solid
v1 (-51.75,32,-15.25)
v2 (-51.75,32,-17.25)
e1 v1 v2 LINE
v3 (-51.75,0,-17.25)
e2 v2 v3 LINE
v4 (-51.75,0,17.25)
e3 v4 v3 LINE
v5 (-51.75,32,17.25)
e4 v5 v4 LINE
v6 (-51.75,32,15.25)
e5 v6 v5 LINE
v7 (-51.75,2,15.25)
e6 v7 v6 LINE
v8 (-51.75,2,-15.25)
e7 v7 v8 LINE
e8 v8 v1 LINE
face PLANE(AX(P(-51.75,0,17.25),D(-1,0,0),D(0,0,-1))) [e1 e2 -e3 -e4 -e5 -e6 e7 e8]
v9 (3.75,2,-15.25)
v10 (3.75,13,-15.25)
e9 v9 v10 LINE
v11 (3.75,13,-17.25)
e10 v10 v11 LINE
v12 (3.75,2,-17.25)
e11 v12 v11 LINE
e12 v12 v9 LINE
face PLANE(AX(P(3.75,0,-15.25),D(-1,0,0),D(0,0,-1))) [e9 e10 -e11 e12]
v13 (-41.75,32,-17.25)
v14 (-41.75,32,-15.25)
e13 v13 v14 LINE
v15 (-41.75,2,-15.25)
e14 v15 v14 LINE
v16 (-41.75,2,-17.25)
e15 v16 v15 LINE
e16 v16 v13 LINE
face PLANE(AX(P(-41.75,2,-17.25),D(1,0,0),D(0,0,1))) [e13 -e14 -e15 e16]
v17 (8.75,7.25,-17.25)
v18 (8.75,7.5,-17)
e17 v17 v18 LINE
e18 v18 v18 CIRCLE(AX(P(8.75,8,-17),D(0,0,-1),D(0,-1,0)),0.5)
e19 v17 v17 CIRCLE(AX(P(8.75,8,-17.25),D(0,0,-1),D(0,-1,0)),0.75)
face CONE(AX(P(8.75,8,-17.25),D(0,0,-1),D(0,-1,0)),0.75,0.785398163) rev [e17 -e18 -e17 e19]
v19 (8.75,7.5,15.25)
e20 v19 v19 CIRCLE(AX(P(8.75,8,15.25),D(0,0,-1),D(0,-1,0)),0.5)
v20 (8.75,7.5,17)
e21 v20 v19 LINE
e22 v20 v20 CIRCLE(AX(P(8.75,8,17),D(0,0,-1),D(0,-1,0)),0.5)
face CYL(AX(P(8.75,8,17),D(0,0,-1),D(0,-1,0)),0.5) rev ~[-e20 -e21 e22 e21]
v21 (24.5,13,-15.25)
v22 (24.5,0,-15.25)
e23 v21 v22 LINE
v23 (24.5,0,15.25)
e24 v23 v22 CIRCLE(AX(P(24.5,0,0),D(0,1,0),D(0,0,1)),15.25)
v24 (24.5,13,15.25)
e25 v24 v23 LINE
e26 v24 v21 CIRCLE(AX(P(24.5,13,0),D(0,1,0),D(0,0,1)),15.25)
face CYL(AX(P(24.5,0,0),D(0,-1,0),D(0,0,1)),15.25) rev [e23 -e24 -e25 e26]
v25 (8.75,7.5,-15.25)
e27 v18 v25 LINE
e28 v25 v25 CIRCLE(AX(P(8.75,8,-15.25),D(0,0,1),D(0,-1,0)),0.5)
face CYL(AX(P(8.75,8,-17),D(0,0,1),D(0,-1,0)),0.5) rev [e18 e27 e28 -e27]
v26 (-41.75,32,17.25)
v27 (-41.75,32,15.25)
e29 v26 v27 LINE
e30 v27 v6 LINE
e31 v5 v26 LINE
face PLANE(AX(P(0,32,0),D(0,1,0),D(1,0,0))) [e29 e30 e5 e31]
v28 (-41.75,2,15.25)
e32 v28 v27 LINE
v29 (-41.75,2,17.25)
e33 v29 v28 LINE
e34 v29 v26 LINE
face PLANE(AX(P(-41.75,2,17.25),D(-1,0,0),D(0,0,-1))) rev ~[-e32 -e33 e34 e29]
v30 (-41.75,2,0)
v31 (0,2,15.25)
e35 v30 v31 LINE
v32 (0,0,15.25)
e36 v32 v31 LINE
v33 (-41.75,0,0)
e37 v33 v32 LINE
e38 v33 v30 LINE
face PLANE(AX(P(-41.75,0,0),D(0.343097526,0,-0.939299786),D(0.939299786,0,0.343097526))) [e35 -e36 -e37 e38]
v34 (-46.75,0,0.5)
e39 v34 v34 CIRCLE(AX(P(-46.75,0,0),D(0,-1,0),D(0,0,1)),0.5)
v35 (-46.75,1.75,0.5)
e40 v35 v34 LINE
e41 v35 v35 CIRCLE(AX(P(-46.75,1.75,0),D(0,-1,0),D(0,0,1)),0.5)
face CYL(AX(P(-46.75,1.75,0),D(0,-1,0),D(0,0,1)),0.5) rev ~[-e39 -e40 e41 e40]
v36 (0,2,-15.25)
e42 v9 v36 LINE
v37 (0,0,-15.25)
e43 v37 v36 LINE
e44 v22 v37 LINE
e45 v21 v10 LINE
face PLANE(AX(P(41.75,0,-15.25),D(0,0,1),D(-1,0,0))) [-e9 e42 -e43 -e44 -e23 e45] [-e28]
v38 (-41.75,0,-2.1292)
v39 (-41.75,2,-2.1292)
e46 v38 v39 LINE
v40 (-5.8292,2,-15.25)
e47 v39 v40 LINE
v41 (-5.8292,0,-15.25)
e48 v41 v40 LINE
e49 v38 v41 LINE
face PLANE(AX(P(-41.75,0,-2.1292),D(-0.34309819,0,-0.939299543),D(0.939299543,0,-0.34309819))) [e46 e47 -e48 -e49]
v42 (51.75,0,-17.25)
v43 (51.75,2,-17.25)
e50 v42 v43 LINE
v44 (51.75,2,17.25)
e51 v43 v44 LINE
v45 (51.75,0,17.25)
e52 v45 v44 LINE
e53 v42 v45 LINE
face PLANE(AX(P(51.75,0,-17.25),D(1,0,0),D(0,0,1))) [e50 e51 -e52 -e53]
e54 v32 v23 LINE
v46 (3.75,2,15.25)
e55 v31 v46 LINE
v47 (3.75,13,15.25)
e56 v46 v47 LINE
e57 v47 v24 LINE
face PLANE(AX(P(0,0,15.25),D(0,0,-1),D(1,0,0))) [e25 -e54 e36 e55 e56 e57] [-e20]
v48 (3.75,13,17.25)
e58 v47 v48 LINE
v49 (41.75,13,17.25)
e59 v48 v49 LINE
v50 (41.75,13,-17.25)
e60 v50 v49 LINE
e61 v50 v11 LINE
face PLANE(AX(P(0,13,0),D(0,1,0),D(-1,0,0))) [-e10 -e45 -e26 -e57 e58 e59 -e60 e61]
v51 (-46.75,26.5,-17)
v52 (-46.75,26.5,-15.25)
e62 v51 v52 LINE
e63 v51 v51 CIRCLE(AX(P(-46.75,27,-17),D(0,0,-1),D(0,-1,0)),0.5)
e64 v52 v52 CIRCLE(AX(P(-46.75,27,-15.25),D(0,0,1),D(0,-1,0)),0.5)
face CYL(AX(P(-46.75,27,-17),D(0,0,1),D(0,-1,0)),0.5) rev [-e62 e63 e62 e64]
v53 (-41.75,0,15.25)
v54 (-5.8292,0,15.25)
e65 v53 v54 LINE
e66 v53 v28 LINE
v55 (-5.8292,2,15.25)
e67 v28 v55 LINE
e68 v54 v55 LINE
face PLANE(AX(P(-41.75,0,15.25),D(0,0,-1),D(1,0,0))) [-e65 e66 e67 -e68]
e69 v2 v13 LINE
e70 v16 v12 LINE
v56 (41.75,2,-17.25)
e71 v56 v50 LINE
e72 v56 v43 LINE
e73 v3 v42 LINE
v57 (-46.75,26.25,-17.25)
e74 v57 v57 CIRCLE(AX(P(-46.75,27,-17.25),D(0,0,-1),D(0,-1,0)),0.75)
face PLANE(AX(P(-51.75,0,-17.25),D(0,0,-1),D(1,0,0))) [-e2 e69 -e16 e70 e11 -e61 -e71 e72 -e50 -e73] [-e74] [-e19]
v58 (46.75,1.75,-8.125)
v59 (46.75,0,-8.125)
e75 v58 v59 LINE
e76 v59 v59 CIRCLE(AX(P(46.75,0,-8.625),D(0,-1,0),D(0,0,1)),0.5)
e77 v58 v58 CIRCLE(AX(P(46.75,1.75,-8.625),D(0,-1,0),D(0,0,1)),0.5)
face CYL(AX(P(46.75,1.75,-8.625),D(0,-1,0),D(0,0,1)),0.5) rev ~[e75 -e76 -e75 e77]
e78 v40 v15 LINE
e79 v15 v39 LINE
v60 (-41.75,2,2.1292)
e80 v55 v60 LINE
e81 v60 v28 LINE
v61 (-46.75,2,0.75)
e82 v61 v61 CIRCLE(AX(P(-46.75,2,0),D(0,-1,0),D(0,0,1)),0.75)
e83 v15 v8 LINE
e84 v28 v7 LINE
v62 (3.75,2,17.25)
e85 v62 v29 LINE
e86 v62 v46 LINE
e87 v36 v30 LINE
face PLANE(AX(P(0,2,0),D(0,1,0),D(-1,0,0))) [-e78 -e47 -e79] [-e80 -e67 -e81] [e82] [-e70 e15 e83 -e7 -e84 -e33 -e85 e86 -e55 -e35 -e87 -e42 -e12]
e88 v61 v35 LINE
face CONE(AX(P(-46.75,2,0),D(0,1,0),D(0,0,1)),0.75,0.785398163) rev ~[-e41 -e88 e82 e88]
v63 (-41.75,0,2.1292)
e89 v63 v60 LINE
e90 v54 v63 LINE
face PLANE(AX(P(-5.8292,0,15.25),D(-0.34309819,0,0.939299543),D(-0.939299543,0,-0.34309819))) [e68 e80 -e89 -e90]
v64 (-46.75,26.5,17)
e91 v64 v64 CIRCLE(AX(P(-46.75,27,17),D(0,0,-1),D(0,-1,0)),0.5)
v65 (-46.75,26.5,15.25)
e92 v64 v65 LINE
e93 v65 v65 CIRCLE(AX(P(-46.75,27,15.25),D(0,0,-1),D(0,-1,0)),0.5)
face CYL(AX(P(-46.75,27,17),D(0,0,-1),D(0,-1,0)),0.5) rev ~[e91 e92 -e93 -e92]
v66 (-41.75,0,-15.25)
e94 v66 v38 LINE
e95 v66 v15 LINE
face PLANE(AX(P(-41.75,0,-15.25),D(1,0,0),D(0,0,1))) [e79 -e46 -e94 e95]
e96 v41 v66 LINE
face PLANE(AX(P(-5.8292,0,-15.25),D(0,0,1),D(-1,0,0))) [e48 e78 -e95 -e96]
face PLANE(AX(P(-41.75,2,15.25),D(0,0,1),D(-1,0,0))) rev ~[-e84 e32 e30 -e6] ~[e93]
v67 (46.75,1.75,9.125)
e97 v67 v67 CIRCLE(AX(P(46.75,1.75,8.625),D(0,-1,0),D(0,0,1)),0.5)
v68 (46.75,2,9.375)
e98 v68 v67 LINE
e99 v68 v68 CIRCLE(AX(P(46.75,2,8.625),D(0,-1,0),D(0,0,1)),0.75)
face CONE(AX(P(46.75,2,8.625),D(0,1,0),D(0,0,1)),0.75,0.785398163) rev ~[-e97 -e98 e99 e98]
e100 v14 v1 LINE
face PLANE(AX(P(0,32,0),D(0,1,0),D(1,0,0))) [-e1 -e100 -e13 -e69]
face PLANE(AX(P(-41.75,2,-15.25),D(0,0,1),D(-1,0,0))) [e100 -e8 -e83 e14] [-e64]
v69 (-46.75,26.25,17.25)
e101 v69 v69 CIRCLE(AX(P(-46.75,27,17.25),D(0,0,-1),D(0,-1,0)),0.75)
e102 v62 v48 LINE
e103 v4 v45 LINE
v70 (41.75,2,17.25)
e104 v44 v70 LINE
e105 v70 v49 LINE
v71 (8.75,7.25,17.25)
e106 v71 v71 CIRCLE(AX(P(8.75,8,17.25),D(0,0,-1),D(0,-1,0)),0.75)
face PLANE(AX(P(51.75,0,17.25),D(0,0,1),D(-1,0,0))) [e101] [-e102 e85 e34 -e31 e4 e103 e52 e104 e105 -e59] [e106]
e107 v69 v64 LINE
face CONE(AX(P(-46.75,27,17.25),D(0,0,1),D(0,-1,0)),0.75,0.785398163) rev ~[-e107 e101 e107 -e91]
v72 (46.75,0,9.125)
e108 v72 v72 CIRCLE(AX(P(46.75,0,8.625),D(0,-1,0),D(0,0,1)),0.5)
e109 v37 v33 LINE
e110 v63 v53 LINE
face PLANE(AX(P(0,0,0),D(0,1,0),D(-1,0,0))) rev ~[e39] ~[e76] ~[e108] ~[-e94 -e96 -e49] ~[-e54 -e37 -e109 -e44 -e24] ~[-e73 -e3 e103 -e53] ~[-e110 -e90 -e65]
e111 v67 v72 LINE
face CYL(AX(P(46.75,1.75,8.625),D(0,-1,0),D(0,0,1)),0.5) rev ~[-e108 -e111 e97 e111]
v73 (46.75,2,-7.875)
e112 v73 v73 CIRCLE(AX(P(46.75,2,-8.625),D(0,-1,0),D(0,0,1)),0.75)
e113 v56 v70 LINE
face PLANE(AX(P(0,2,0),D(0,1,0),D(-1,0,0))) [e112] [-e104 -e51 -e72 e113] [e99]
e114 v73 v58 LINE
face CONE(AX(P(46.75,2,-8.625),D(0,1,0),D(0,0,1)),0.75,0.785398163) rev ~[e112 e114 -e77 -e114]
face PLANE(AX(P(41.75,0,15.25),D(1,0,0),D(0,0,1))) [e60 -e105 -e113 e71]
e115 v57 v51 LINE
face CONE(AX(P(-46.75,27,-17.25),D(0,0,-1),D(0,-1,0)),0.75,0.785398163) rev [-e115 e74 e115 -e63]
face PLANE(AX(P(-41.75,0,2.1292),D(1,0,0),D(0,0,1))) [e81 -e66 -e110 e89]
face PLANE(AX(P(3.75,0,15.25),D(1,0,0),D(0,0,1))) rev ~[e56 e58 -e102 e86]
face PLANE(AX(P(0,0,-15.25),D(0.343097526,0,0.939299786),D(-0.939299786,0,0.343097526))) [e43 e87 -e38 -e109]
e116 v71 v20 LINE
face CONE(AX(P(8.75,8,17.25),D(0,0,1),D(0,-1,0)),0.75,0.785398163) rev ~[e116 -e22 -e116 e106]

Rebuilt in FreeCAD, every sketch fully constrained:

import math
import FreeCAD as App
import Part
import Sketcher

doc = App.newDocument("Part")
body = doc.addObject("PartDesign::Body", "Body")

# Sketch on XZ plane
sketch1 = doc.addObject("Sketcher::SketchObject", "Sketch")
body.addObject(sketch1)
sketch1.AttachmentSupport = (doc.XZ_Plane, [""])
sketch1.MapMode = "FlatFace"
sketch1.addGeometry(Part.LineSegment(App.Vector(-51.75, 17.25, 0), App.Vector(51.75, 17.25, 0)), False)
sketch1.addGeometry(Part.LineSegment(App.Vector(51.75, 17.25, 0), App.Vector(51.75, -17.25, 0)), False)
sketch1.addGeometry(Part.LineSegment(App.Vector(51.75, -17.25, 0), App.Vector(-51.75, -17.25, 0)), False)
sketch1.addGeometry(Part.LineSegment(App.Vector(-51.75, -17.25, 0), App.Vector(-51.75, 17.25, 0)), False)
sketch1.addGeometry(Part.LineSegment(App.Vector(-41.75, -2.1292, 0), App.Vector(-41.75, -15.25, 0)), False)
sketch1.addGeometry(Part.LineSegment(App.Vector(-41.75, -15.25, 0), App.Vector(-5.8292, -15.25, 0)), False)
sketch1.addGeometry(Part.LineSegment(App.Vector(-5.8292, -15.25, 0), App.Vector(-41.75, -2.1292, 0)), False)
sketch1.addGeometry(Part.LineSegment(App.Vector(0, -15.25, 0), App.Vector(41.75, -15.25, 0)), False)
sketch1.addGeometry(Part.LineSegment(App.Vector(41.75, -15.25, 0), App.Vector(41.75, 15.25, 0)), False)
sketch1.addGeometry(Part.LineSegment(App.Vector(41.75, 15.25, 0), App.Vector(0, 15.25, 0)), False)
sketch1.addGeometry(Part.LineSegment(App.Vector(0, 15.25, 0), App.Vector(-41.75, 0, 0)), False)
sketch1.addGeometry(Part.LineSegment(App.Vector(-41.75, 0, 0), App.Vector(0, -15.25, 0)), False)
sketch1.addGeometry(Part.LineSegment(App.Vector(-5.8292, 15.25, 0), App.Vector(-41.75, 15.25, 0)), False)
sketch1.addGeometry(Part.LineSegment(App.Vector(-41.75, 15.25, 0), App.Vector(-41.75, 2.1292, 0)), False)
sketch1.addGeometry(Part.LineSegment(App.Vector(-41.75, 2.1292, 0), App.Vector(-5.8292, 15.25, 0)), False)
sketch1.addConstraint(Sketcher.Constraint("Coincident", 0, 2, 1, 1))
sketch1.addConstraint(Sketcher.Constraint("Coincident", 1, 2, 2, 1))
sketch1.addConstraint(Sketcher.Constraint("Coincident", 2, 2, 3, 1))
sketch1.addConstraint(Sketcher.Constraint("Coincident", 3, 2, 0, 1))
sketch1.addConstraint(Sketcher.Constraint("Coincident", 4, 2, 5, 1))
sketch1.addConstraint(Sketcher.Constraint("Coincident", 5, 2, 6, 1))
sketch1.addConstraint(Sketcher.Constraint("Coincident", 6, 2, 4, 1))
sketch1.addConstraint(Sketcher.Constraint("Coincident", 7, 2, 8, 1))
sketch1.addConstraint(Sketcher.Constraint("Coincident", 8, 2, 9, 1))
sketch1.addConstraint(Sketcher.Constraint("Coincident", 9, 2, 10, 1))
sketch1.addConstraint(Sketcher.Constraint("Coincident", 10, 2, 11, 1))
sketch1.addConstraint(Sketcher.Constraint("Coincident", 11, 2, 7, 1))
sketch1.addConstraint(Sketcher.Constraint("Coincident", 12, 2, 13, 1))
sketch1.addConstraint(Sketcher.Constraint("Coincident", 13, 2, 14, 1))
sketch1.addConstraint(Sketcher.Constraint("Coincident", 14, 2, 12, 1))
sketch1.addConstraint(Sketcher.Constraint("Horizontal", 0))
sketch1.addConstraint(Sketcher.Constraint("Vertical", 1))
sketch1.addConstraint(Sketcher.Constraint("Horizontal", 2))
sketch1.addConstraint(Sketcher.Constraint("Vertical", 3))
sketch1.addConstraint(Sketcher.Constraint("Vertical", 4))
sketch1.addConstraint(Sketcher.Constraint("Horizontal", 5))
sketch1.addConstraint(Sketcher.Constraint("Horizontal", 7))
sketch1.addConstraint(Sketcher.Constraint("Vertical", 8))
sketch1.addConstraint(Sketcher.Constraint("Horizontal", 9))
sketch1.addConstraint(Sketcher.Constraint("Horizontal", 12))
sketch1.addConstraint(Sketcher.Constraint("Vertical", 13))
sketch1.addConstraint(Sketcher.Constraint("Symmetric", 0, 2, 2, 2, -1, 1))
sketch1.addConstraint(Sketcher.Constraint("Symmetric", 4, 2, 8, 2, -1, 1))
sketch1.addConstraint(Sketcher.Constraint("Symmetric", 9, 2, 11, 2, -1, 1))
sketch1.addConstraint(Sketcher.Constraint("Symmetric", 7, 2, 12, 2, -1, 1))
sketch1.addConstraint(Sketcher.Constraint("PointOnObject", 9, 2, -2))
sketch1.addConstraint(Sketcher.Constraint("PointOnObject", 10, 2, -1))
sketch1.addConstraint(Sketcher.Constraint("Parallel", 6, 11))
sketch1.addConstraint(Sketcher.Constraint("Parallel", 10, 14))
sketch1.addConstraint(Sketcher.Constraint("Vertical", 6, 2, 10, 2))
sketch1.addConstraint(Sketcher.Constraint("Vertical", 5, 2, 14, 2))
sketch1.addConstraint(Sketcher.Constraint("DistanceX", 0, 1, 0, 2, 103.5))
sketch1.addConstraint(Sketcher.Constraint("DistanceY", 8, 1, 8, 2, 30.5))
sketch1.addConstraint(Sketcher.Constraint("DistanceX", 2, 2, 4, 2, 10.0))
sketch1.addConstraint(Sketcher.Constraint("DistanceY", 2, 2, 4, 2, 2.0))
sketch1.addConstraint(Sketcher.Constraint("Distance", 6, 38.242))
pad1 = doc.addObject("PartDesign::Pad", "Pad")
body.addObject(pad1)
pad1.Profile = sketch1
pad1.Length = 2
pad1.Reversed = True

# Sketch on XZ plane
sketch2 = doc.addObject("Sketcher::SketchObject", "Sketch001")
body.addObject(sketch2)
sketch2.AttachmentSupport = (doc.XZ_Plane, [""])
sketch2.MapMode = "FlatFace"
sketch2.addGeometry(Part.LineSegment(App.Vector(41.75, 17.25, 0), App.Vector(41.75, -17.25, 0)), False)
sketch2.addGeometry(Part.LineSegment(App.Vector(41.75, -17.25, 0), App.Vector(3.75, -17.25, 0)), False)
sketch2.addGeometry(Part.LineSegment(App.Vector(3.75, -17.25, 0), App.Vector(3.75, -15.25, 0)), False)
sketch2.addGeometry(Part.LineSegment(App.Vector(3.75, -15.25, 0), App.Vector(24.5, -15.25, 0)), False)
sketch2.addGeometry(Part.ArcOfCircle(Part.Circle(App.Vector(24.5, 0, 0), App.Vector(0, 0, 1), 15.25), math.radians(-90), math.radians(90)), False)
sketch2.addGeometry(Part.LineSegment(App.Vector(24.5, 15.25, 0), App.Vector(3.75, 15.25, 0)), False)
sketch2.addGeometry(Part.LineSegment(App.Vector(3.75, 15.25, 0), App.Vector(3.75, 17.25, 0)), False)
sketch2.addGeometry(Part.LineSegment(App.Vector(3.75, 17.25, 0), App.Vector(41.75, 17.25, 0)), False)
sketch2.addConstraint(Sketcher.Constraint("Coincident", 0, 2, 1, 1))
sketch2.addConstraint(Sketcher.Constraint("Coincident", 1, 2, 2, 1))
sketch2.addConstraint(Sketcher.Constraint("Coincident", 2, 2, 3, 1))
sketch2.addConstraint(Sketcher.Constraint("Tangent", 3, 2, 4, 1))
sketch2.addConstraint(Sketcher.Constraint("Tangent", 4, 2, 5, 1))
sketch2.addConstraint(Sketcher.Constraint("Coincident", 5, 2, 6, 1))
sketch2.addConstraint(Sketcher.Constraint("Coincident", 6, 2, 7, 1))
sketch2.addConstraint(Sketcher.Constraint("Coincident", 7, 2, 0, 1))
sketch2.addConstraint(Sketcher.Constraint("Vertical", 0))
sketch2.addConstraint(Sketcher.Constraint("Horizontal", 1))
sketch2.addConstraint(Sketcher.Constraint("Vertical", 2))
sketch2.addConstraint(Sketcher.Constraint("Horizontal", 3))
sketch2.addConstraint(Sketcher.Constraint("Horizontal", 5))
sketch2.addConstraint(Sketcher.Constraint("Vertical", 6))
sketch2.addConstraint(Sketcher.Constraint("Horizontal", 7))
sketch2.addConstraint(Sketcher.Constraint("Symmetric", 2, 2, 5, 2, -1))
sketch2.addConstraint(Sketcher.Constraint("Equal", 2, 6))
sketch2.addConstraint(Sketcher.Constraint("DistanceY", 2, 1, 2, 2, 2.0))
sketch2.addConstraint(Sketcher.Constraint("DistanceX", 1, 2, 1, 1, 38.0))
sketch2.addConstraint(Sketcher.Constraint("Radius", 4, 15.25))
sketch2.addConstraint(Sketcher.Constraint("DistanceX", 3, 1, 3, 2, 20.75))
sketch2.addConstraint(Sketcher.Constraint("DistanceX", -1, 1, 4, 3, 24.5))
pad2 = doc.addObject("PartDesign::Pad", "Pad001")
body.addObject(pad2)
pad2.Profile = sketch2
pad2.Length = 13
pad2.Reversed = True

# Sketch on XZ plane
sketch3 = doc.addObject("Sketcher::SketchObject", "Sketch002")
body.addObject(sketch3)
sketch3.AttachmentSupport = (doc.XZ_Plane, [""])
sketch3.MapMode = "FlatFace"
sketch3.AttachmentOffset = App.Placement(App.Vector(0, 0, -2), App.Rotation())
sketch3.addGeometry(Part.LineSegment(App.Vector(-51.75, -15.25, 0), App.Vector(-41.75, -15.25, 0)), False)
sketch3.addGeometry(Part.LineSegment(App.Vector(-41.75, -15.25, 0), App.Vector(-41.75, -17.25, 0)), False)
sketch3.addGeometry(Part.LineSegment(App.Vector(-41.75, -17.25, 0), App.Vector(-51.75, -17.25, 0)), False)
sketch3.addGeometry(Part.LineSegment(App.Vector(-51.75, -17.25, 0), App.Vector(-51.75, -15.25, 0)), False)
sketch3.addGeometry(Part.LineSegment(App.Vector(-51.75, 15.25, 0), App.Vector(-51.75, 17.25, 0)), False)
sketch3.addGeometry(Part.LineSegment(App.Vector(-51.75, 17.25, 0), App.Vector(-41.75, 17.25, 0)), False)
sketch3.addGeometry(Part.LineSegment(App.Vector(-41.75, 17.25, 0), App.Vector(-41.75, 15.25, 0)), False)
sketch3.addGeometry(Part.LineSegment(App.Vector(-41.75, 15.25, 0), App.Vector(-51.75, 15.25, 0)), False)
sketch3.addConstraint(Sketcher.Constraint("Coincident", 0, 2, 1, 1))
sketch3.addConstraint(Sketcher.Constraint("Coincident", 1, 2, 2, 1))
sketch3.addConstraint(Sketcher.Constraint("Coincident", 2, 2, 3, 1))
sketch3.addConstraint(Sketcher.Constraint("Coincident", 3, 2, 0, 1))
sketch3.addConstraint(Sketcher.Constraint("Coincident", 4, 2, 5, 1))
sketch3.addConstraint(Sketcher.Constraint("Coincident", 5, 2, 6, 1))
sketch3.addConstraint(Sketcher.Constraint("Coincident", 6, 2, 7, 1))
sketch3.addConstraint(Sketcher.Constraint("Coincident", 7, 2, 4, 1))
sketch3.addConstraint(Sketcher.Constraint("Horizontal", 0))
sketch3.addConstraint(Sketcher.Constraint("Vertical", 1))
sketch3.addConstraint(Sketcher.Constraint("Horizontal", 2))
sketch3.addConstraint(Sketcher.Constraint("Vertical", 3))
sketch3.addConstraint(Sketcher.Constraint("Vertical", 4))
sketch3.addConstraint(Sketcher.Constraint("Horizontal", 5))
sketch3.addConstraint(Sketcher.Constraint("Vertical", 6))
sketch3.addConstraint(Sketcher.Constraint("Horizontal", 7))
sketch3.addConstraint(Sketcher.Constraint("Symmetric", 2, 2, 4, 2, -1))
sketch3.addConstraint(Sketcher.Constraint("Symmetric", 0, 2, 6, 2, -1))
sketch3.addConstraint(Sketcher.Constraint("DistanceX", 0, 1, 0, 2, 10.0))
sketch3.addConstraint(Sketcher.Constraint("DistanceY", 1, 2, 1, 1, 2.0))
sketch3.addConstraint(Sketcher.Constraint("DistanceY", 3, 2, 4, 2, 32.5))
sketch3.addConstraint(Sketcher.Constraint("DistanceX", 0, 2, -1, 1, 41.75))
pad3 = doc.addObject("PartDesign::Pad", "Pad002")
body.addObject(pad3)
pad3.Profile = sketch3
pad3.Length = 30
pad3.Reversed = True

# Sketch on XZ plane
sketch4 = doc.addObject("Sketcher::SketchObject", "Sketch003")
body.addObject(sketch4)
sketch4.AttachmentSupport = (doc.XZ_Plane, [""])
sketch4.MapMode = "FlatFace"
sketch4.AttachmentOffset = App.Placement(App.Vector(0, 0, -2), App.Rotation())
sketch4.addGeometry(Part.Circle(App.Vector(-46.75, 0, 0), App.Vector(0, 0, 1), 0.5), False)
sketch4.addGeometry(Part.Circle(App.Vector(46.75, 8.625, 0), App.Vector(0, 0, 1), 0.5), False)
sketch4.addGeometry(Part.Circle(App.Vector(46.75, -8.625, 0), App.Vector(0, 0, 1), 0.5), False)
sketch4.addConstraint(Sketcher.Constraint("Equal", 0, 1))
sketch4.addConstraint(Sketcher.Constraint("Equal", 1, 2))
sketch4.addConstraint(Sketcher.Constraint("Symmetric", 1, 3, 2, 3, -1))
sketch4.addConstraint(Sketcher.Constraint("PointOnObject", 0, 3, -1))
sketch4.addConstraint(Sketcher.Constraint("Diameter", 0, 1.0))
sketch4.addConstraint(Sketcher.Constraint("DistanceX", 0, 3, 1, 3, 93.5))
sketch4.addConstraint(Sketcher.Constraint("DistanceX", 0, 3, -1, 1, 46.75))
sketch4.addConstraint(Sketcher.Constraint("DistanceY", 2, 3, 1, 3, 17.25))
doc.recompute()
hole = doc.addObject("PartDesign::Hole", "Hole")
body.addObject(hole)
hole.Profile = sketch4
hole.ThreadType = "None"
hole.Diameter = 1
hole.DepthType = "ThroughAll"
hole.HoleCutType = "Countersink"
hole.HoleCutDiameter = 1.5
hole.HoleCutCountersinkAngle = 90
hole.Reversed = True

# Sketch on XY plane
sketch5 = doc.addObject("Sketcher::SketchObject", "Sketch004")
body.addObject(sketch5)
sketch5.AttachmentSupport = (doc.XY_Plane, [""])
sketch5.MapMode = "FlatFace"
sketch5.AttachmentOffset = App.Placement(App.Vector(0, 0, 17.25), App.Rotation())
sketch5.addGeometry(Part.Circle(App.Vector(-46.75, 27, 0), App.Vector(0, 0, 1), 0.5), False)
sketch5.addGeometry(Part.Circle(App.Vector(8.75, 8, 0), App.Vector(0, 0, 1), 0.5), False)
sketch5.addConstraint(Sketcher.Constraint("Equal", 0, 1))
sketch5.addConstraint(Sketcher.Constraint("Diameter", 0, 1.0))
sketch5.addConstraint(Sketcher.Constraint("DistanceY", -1, 1, 0, 3, 27.0))
sketch5.addConstraint(Sketcher.Constraint("DistanceY", -1, 1, 1, 3, 8.0))
sketch5.addConstraint(Sketcher.Constraint("DistanceX", 0, 3, 1, 3, 55.5))
sketch5.addConstraint(Sketcher.Constraint("DistanceX", 0, 3, -1, 1, 46.75))
doc.recompute()
hole2 = doc.addObject("PartDesign::Hole", "Hole001")
body.addObject(hole2)
hole2.Profile = sketch5
hole2.ThreadType = "None"
hole2.Diameter = 1
hole2.DepthType = "Dimension"
hole2.Depth = 17.25
hole2.DrillPoint = "Flat"
hole2.HoleCutType = "Countersink"
hole2.HoleCutDiameter = 1.5
hole2.HoleCutCountersinkAngle = 90
doc.recompute()

mirrored = doc.addObject("PartDesign::Mirrored", "Mirrored")
body.addObject(mirrored)
mirrored.Originals = [hole2]
mirrored.MirrorPlane = (doc.XY_Plane, [""])
body.Tip = mirrored

doc.recompute()
